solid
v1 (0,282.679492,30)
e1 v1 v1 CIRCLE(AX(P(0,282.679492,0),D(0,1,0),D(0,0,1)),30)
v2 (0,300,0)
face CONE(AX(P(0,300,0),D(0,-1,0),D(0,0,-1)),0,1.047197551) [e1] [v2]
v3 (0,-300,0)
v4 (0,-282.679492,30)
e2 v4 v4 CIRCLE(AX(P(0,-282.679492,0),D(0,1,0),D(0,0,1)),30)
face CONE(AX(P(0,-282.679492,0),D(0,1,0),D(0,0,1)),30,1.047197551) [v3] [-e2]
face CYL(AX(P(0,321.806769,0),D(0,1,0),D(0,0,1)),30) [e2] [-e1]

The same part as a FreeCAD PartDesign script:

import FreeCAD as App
import Part
import Sketcher
Q = App.Units.Quantity


def add_polygon(sketch, points):
    """Adds a closed chain of lines whose ends are joined by coincident constraints."""
    first, n = sketch.GeometryCount, len(points)
    for a, b in zip(points, points[1:] + points[:1]):
        sketch.addGeometry(Part.LineSegment(App.Vector(*a, 0), App.Vector(*b, 0)), False)
    for i in range(n):
        sketch.addConstraint(Sketcher.Constraint("Coincident", first + i, 2, first + (i + 1) % n, 1))

doc = App.newDocument("Part")
params = doc.addObject("Spreadsheet::Sheet", "Params")
for row, (alias, value) in enumerate([
    ("sketch1_width", "600 mm"),
    ("revolution_angle", "360 deg"),
], start=1):
    params.set(f"A{row}", alias)
    params.set(f"B{row}", "=" + value)
    params.setAlias(f"B{row}", alias)

body = doc.addObject("PartDesign::Body", "Body")

# Sketch on YZ plane
sketch1 = doc.addObject("Sketcher::SketchObject", "Sketch")
body.addObject(sketch1)
sketch1.AttachmentSupport = (doc.YZ_Plane, [""])
sketch1.MapMode = "FlatFace"
add_polygon(sketch1, [(283, 30), (-283, 30), (-300, 0), (300, 0)])  # lines 0-3
sketch1.addConstraint(Sketcher.Constraint("Horizontal", 0))
sketch1.addConstraint(Sketcher.Constraint("Horizontal", 2))
sketch1.addConstraint(Sketcher.Constraint("Symmetric", 1, 2, 2, 2, -1, 1))
sketch1.addConstraint(Sketcher.Constraint("Equal", 1, 3))
sketch1.addConstraint(Sketcher.Constraint("DistanceX", 2, 1, 2, 2, Q("600 mm")))
sketch1.addConstraint(Sketcher.Constraint("Angle", 1, Q("-120 deg")))
sketch1.addConstraint(Sketcher.Constraint("DistanceY", -1, 1, 0, 2, Q("30 mm")))
sketch1.setExpression("Constraints[8]", "Params.sketch1_width")
revolution = doc.addObject("PartDesign::Revolution", "Revolution")
body.addObject(revolution)
revolution.Profile = sketch1
revolution.ReferenceAxis = (sketch1, ["H_Axis"])
revolution.setExpression("Angle", "Params.revolution_angle")

doc.recompute()
